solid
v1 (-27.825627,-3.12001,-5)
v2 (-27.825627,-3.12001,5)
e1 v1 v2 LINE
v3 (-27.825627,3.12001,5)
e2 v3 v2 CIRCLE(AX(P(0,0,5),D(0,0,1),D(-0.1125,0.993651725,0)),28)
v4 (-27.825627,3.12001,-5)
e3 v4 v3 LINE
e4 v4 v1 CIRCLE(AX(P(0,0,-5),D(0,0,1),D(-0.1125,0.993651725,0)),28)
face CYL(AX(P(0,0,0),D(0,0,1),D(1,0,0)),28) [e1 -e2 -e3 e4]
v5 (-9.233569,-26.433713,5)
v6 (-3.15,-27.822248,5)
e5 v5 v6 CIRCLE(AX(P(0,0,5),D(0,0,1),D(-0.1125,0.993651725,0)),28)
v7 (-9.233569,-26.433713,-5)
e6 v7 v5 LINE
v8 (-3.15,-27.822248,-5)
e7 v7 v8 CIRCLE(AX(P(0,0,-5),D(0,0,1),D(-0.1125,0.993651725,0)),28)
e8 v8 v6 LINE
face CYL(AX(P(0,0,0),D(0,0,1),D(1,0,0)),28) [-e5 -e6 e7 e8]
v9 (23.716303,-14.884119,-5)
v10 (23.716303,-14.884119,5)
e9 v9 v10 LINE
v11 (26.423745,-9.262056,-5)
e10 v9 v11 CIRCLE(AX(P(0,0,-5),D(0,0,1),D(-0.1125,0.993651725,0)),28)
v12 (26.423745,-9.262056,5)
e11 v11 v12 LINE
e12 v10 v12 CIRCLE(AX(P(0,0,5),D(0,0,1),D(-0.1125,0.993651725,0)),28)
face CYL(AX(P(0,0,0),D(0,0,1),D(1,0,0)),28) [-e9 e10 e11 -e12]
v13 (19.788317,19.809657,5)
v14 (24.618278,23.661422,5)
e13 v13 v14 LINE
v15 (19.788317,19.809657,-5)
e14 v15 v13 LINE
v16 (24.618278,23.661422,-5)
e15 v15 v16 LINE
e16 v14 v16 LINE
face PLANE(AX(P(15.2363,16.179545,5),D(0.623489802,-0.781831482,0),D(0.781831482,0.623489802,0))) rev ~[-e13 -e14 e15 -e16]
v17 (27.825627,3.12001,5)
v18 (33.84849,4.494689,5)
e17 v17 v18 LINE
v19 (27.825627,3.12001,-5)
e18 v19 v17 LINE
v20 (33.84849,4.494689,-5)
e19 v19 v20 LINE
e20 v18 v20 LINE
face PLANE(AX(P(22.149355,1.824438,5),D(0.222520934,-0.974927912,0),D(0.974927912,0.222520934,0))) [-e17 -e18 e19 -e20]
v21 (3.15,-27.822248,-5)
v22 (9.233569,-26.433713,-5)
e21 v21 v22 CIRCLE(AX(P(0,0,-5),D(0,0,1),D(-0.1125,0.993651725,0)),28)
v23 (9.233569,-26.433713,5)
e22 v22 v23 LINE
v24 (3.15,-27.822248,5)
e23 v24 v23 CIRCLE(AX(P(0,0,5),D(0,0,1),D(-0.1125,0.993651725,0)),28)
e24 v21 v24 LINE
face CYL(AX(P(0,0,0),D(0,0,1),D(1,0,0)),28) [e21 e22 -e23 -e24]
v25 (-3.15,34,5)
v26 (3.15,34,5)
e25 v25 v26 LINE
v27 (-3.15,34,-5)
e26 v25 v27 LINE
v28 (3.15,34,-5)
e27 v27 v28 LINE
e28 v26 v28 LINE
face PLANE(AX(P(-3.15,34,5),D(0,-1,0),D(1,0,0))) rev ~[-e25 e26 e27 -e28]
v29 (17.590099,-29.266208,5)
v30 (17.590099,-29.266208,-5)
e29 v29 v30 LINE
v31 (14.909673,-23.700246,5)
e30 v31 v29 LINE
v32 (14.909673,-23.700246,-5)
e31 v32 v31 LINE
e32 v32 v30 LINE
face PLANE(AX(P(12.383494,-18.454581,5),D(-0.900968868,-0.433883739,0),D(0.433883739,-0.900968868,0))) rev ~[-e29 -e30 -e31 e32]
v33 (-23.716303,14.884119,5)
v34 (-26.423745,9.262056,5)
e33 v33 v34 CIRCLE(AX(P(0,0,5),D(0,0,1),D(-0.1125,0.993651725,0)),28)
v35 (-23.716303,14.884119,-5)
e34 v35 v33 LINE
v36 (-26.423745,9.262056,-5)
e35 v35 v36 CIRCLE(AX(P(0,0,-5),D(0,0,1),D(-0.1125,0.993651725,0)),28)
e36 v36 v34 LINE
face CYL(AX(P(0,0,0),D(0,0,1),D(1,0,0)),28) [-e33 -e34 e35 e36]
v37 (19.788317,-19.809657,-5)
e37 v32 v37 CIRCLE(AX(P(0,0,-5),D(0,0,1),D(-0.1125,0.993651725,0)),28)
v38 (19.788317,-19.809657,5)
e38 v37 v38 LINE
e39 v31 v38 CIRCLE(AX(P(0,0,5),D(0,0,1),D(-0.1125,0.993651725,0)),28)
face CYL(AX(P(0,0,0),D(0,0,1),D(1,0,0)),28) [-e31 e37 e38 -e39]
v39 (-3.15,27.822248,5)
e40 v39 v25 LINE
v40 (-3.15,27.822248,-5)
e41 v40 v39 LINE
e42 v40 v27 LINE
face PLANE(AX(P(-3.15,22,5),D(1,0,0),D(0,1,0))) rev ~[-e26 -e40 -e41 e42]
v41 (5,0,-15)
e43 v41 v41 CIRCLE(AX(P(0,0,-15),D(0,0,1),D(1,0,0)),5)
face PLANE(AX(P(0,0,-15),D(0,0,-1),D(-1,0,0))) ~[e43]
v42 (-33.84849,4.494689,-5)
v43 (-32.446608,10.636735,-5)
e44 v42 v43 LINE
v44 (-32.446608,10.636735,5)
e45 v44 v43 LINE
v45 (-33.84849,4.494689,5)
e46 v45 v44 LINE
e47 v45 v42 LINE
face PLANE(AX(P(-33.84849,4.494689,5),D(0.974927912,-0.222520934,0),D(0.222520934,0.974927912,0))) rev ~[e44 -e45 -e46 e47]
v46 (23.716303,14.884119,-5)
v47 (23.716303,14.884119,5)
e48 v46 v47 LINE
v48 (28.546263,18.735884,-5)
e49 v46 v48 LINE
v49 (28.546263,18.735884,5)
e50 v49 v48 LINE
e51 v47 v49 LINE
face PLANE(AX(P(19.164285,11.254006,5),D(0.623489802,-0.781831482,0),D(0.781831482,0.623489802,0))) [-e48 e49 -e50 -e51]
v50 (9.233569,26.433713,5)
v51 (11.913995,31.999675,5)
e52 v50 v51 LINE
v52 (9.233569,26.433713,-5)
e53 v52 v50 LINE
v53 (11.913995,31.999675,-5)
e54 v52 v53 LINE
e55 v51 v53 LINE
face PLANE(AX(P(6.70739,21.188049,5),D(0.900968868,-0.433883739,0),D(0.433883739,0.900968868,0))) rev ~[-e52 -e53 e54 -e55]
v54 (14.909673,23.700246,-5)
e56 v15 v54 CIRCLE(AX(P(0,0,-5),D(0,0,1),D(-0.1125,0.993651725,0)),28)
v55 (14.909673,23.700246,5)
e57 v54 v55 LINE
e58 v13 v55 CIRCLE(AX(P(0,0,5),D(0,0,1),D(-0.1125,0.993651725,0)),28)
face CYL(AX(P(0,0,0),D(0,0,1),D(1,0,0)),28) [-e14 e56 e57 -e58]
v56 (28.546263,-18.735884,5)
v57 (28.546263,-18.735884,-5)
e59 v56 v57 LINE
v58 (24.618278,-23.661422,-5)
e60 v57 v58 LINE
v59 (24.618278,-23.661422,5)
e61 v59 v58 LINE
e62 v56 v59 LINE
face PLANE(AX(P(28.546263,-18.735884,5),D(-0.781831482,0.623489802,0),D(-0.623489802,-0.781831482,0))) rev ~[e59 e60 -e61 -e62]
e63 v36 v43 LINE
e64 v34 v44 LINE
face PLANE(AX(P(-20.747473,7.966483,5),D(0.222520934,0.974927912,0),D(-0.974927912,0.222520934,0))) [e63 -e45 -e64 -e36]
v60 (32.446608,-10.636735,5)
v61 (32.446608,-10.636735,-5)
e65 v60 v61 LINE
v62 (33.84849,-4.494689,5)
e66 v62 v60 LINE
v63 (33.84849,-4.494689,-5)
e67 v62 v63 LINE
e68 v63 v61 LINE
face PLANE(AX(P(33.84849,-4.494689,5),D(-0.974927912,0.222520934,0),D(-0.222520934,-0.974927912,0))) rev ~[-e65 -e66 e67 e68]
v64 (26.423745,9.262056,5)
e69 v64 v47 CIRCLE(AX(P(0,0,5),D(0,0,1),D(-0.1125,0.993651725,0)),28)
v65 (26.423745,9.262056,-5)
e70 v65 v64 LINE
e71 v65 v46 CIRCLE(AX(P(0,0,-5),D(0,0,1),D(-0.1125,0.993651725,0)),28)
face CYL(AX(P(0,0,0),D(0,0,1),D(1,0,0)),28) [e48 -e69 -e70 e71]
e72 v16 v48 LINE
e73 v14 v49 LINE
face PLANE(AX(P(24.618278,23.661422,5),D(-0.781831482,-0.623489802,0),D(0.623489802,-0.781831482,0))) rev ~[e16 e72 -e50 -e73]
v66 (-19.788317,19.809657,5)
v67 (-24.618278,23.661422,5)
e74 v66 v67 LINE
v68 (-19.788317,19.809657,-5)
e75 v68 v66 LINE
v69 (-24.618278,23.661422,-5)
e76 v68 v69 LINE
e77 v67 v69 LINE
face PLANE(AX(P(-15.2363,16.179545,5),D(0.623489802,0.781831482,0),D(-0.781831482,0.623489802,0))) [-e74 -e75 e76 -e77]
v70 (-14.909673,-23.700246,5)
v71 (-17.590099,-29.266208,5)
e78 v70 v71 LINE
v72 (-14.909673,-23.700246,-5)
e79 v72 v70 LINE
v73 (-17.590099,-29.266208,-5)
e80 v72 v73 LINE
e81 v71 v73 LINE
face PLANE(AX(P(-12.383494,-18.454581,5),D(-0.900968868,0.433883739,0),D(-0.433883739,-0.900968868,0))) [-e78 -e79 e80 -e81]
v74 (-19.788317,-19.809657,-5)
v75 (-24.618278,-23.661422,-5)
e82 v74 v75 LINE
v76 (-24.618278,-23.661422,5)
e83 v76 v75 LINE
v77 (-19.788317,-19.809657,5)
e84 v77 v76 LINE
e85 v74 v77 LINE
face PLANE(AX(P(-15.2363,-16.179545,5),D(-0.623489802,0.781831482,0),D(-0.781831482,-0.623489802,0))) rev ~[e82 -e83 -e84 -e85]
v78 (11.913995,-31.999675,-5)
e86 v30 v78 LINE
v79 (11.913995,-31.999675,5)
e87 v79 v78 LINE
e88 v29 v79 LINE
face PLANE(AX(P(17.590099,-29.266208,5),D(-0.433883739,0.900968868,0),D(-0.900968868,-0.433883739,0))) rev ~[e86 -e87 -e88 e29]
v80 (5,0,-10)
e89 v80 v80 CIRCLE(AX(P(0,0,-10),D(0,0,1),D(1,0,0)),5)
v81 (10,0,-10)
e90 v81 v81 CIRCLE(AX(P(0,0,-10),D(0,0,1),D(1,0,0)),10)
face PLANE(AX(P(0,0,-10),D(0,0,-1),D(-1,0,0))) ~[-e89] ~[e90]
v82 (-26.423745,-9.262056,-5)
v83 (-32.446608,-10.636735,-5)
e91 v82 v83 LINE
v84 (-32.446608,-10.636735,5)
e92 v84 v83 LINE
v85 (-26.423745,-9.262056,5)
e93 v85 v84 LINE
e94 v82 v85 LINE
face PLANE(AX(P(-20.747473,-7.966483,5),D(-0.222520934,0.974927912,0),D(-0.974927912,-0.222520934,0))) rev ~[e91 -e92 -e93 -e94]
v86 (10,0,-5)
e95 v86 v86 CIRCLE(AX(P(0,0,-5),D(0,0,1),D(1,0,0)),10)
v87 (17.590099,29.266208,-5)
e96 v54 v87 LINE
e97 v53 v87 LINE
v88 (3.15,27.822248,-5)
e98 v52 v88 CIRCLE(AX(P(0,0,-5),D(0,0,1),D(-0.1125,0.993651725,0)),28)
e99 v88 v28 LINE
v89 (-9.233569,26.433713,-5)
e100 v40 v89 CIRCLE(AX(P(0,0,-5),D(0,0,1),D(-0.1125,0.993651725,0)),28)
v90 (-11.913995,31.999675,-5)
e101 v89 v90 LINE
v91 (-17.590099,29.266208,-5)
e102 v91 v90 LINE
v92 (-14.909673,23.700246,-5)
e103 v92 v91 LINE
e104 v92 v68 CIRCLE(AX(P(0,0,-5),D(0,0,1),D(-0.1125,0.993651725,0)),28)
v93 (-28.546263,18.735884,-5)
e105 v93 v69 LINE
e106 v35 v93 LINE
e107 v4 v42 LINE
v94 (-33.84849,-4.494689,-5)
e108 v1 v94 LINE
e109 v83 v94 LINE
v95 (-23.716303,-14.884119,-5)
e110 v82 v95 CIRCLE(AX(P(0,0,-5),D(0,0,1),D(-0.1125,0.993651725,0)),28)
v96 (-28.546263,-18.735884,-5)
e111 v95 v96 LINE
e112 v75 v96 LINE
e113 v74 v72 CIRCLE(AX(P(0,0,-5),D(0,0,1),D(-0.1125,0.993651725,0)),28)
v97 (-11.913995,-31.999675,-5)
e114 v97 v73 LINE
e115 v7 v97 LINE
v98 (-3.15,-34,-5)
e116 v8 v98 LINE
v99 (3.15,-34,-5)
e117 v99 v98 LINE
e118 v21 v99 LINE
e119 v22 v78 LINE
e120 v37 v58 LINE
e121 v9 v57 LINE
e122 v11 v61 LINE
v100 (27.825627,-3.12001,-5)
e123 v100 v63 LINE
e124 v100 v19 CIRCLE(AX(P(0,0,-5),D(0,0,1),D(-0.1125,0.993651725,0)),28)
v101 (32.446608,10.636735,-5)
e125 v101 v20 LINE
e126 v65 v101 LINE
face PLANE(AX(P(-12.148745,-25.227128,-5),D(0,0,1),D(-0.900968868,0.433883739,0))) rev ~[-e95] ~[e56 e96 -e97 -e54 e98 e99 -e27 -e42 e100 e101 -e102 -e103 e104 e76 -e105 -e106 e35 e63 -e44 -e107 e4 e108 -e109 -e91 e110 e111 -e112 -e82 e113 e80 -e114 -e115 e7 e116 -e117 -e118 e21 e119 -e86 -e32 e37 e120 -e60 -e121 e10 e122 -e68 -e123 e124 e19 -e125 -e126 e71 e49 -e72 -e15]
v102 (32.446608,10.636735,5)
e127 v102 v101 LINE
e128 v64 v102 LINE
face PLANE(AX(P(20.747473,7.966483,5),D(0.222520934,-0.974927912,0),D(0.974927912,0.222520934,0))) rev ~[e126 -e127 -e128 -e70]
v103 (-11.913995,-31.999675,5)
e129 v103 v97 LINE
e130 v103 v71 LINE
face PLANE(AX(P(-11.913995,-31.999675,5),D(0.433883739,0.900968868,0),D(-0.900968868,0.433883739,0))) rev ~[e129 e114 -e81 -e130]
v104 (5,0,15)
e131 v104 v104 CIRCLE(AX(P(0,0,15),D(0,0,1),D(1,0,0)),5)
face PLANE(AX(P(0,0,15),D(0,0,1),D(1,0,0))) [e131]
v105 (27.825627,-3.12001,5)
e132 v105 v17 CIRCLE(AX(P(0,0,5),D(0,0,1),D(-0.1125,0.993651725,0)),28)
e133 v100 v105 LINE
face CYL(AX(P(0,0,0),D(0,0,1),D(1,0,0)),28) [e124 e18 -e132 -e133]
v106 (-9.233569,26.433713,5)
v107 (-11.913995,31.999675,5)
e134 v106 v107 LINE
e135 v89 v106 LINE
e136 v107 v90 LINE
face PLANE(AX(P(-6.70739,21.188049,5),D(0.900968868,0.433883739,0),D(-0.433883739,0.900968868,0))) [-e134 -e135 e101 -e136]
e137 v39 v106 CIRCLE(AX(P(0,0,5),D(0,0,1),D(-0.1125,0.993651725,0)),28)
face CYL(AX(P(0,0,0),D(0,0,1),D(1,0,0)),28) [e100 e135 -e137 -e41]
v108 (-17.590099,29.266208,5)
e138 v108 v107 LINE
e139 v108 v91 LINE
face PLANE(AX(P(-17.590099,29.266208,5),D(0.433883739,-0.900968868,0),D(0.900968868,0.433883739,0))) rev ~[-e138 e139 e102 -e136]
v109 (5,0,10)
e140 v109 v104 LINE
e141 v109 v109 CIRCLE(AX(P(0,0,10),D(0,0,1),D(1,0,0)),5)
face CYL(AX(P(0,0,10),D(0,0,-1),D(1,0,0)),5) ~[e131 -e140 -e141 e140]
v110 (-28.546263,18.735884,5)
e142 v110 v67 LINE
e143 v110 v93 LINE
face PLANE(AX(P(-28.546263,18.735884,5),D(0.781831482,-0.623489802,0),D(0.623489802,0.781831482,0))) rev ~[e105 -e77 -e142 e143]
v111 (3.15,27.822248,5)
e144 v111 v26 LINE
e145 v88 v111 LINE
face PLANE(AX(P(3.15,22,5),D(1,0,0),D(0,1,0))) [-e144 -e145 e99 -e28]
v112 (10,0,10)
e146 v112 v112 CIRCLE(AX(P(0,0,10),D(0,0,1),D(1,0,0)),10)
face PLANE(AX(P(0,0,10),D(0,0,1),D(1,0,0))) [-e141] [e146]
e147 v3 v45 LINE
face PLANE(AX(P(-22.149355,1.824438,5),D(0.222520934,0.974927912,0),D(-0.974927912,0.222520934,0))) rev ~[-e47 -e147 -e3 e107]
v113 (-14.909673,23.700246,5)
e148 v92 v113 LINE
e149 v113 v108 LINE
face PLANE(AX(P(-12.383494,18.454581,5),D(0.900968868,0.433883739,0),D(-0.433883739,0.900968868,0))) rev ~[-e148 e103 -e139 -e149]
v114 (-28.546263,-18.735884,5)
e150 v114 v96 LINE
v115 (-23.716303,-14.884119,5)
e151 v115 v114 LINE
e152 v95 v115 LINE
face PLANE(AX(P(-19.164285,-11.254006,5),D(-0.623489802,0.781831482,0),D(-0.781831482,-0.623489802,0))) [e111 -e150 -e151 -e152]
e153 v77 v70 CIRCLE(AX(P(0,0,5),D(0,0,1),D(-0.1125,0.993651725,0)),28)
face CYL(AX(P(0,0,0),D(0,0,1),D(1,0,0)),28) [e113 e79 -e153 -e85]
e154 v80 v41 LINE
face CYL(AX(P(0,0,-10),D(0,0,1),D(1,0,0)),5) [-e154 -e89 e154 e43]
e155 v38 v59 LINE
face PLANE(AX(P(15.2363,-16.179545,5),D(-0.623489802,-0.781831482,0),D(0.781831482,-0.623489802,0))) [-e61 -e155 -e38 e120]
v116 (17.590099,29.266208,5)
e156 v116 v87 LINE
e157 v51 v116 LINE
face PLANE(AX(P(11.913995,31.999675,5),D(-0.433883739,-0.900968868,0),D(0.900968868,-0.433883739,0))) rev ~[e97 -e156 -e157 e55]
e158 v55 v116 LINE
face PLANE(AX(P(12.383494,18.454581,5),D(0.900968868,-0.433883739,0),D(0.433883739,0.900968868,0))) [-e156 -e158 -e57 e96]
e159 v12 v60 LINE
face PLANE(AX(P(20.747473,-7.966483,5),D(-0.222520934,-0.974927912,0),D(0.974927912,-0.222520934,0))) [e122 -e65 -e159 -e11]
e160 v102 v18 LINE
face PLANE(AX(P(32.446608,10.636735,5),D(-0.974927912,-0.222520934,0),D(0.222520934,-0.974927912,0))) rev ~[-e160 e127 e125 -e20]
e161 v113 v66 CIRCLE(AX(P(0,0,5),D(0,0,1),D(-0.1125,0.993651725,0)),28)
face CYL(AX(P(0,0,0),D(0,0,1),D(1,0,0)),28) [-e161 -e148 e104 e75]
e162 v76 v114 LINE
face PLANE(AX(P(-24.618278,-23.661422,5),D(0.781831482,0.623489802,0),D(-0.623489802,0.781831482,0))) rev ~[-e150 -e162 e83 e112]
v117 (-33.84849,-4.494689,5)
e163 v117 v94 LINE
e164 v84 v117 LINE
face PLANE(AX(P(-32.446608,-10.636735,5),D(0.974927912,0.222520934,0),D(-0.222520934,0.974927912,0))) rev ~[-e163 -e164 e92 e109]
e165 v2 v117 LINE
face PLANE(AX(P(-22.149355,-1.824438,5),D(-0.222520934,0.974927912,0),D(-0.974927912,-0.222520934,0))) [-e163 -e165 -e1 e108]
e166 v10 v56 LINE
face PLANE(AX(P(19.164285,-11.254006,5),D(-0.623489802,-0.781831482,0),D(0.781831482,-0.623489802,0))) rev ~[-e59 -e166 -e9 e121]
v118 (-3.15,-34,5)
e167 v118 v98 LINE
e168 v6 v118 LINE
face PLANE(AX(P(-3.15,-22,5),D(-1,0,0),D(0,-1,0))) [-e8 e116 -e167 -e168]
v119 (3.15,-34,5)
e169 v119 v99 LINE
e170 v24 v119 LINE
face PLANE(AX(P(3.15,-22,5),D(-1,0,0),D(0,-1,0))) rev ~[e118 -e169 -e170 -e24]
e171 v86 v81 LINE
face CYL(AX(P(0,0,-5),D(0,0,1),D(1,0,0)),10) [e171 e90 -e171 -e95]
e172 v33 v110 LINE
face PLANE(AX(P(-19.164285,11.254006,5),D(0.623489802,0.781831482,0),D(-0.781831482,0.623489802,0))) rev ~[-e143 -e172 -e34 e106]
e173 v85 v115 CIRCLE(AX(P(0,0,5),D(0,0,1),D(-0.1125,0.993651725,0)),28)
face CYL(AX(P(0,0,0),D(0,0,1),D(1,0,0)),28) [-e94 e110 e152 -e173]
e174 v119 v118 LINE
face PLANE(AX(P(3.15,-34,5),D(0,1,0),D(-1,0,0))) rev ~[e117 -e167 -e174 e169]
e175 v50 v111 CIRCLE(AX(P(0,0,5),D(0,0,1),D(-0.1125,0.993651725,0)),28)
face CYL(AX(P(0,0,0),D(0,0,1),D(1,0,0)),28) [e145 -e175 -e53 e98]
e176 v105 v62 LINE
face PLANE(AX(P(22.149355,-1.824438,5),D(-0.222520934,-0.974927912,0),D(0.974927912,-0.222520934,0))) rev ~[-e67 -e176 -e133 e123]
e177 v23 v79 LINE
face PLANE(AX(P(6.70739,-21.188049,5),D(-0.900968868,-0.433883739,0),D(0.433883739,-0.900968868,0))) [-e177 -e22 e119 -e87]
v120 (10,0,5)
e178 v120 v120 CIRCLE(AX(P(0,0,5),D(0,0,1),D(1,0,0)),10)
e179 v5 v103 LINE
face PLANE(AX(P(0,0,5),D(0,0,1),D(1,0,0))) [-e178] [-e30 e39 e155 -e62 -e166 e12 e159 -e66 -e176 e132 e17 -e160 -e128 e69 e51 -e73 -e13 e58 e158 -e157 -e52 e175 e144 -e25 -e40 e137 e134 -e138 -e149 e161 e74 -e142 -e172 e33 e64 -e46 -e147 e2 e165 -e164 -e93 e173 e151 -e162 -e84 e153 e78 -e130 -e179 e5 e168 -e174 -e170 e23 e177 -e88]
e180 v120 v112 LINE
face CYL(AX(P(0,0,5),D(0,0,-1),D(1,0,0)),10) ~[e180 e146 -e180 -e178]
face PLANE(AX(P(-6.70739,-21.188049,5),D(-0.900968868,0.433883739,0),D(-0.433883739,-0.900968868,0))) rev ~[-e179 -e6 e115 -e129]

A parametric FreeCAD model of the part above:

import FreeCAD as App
import Part
import Sketcher
Q = App.Units.Quantity


def add_polygon(sketch, points):
    """Adds a closed chain of lines whose ends are joined by coincident constraints."""
    first, n = sketch.GeometryCount, len(points)
    for a, b in zip(points, points[1:] + points[:1]):
        sketch.addGeometry(Part.LineSegment(App.Vector(*a, 0), App.Vector(*b, 0)), False)
    for i in range(n):
        sketch.addConstraint(Sketcher.Constraint("Coincident", first + i, 2, first + (i + 1) % n, 1))

doc = App.newDocument("Part")
params = doc.addObject("Spreadsheet::Sheet", "Params")
for row, (alias, value) in enumerate([
    ("sketch1_diameter", "56 mm"),
    ("pad1_length", "10 mm"),
    ("sketch2_height", "12 mm"),
    ("sketch2_width", "6.3 mm"),
    ("pad2_length", "10 mm"),
    ("sketch3_diameter", "20 mm"),
    ("pad3_length", "5 mm"),
    ("sketch4_diameter", "10 mm"),
    ("pad4_length", "5 mm"),
], start=1):
    params.set(f"A{row}", alias)
    params.set(f"B{row}", "=" + value)
    params.setAlias(f"B{row}", alias)

body = doc.addObject("PartDesign::Body", "Body")

sketch1 = body.newObject("Sketcher::SketchObject", "Sketch")
sketch1.AttachmentSupport = (doc.getObject("XY_Plane"), [""])
sketch1.MapMode = "FlatFace"
sketch1.addGeometry(Part.Circle(App.Vector(0, 0, 0), App.Vector(0, 0, 1), 28), False)
sketch1.addConstraint([
    Sketcher.Constraint("Coincident", 0, 3, -1, 1),
    Sketcher.Constraint("Diameter", 0, Q("56 mm")),
])
sketch1.setExpression("Constraints[1]", "Params.sketch1_diameter")
pad1 = body.newObject("PartDesign::Pad", "Pad")
pad1.Profile = sketch1
pad1.setExpression("Length", "Params.pad1_length")
pad1.Midplane = True

sketch2 = body.newObject("Sketcher::SketchObject", "Sketch001")
sketch2.AttachmentSupport = (doc.getObject("XY_Plane"), [""])
sketch2.MapMode = "FlatFace"
sketch2.AttachmentOffset = App.Placement(App.Vector(0, 0, 5), App.Rotation())
add_polygon(sketch2, [(-3, 34), (-3, 22), (3, 22), (3, 34)])
sketch2.addConstraint([
    Sketcher.Constraint("Vertical", 0),
    Sketcher.Constraint("Horizontal", 1),
    Sketcher.Constraint("Vertical", 2),
    Sketcher.Constraint("Horizontal", 3),
    Sketcher.Constraint("DistanceY", 0, 2, 0, 1, Q("12 mm")),
    Sketcher.Constraint("DistanceX", 1, 1, 1, 2, Q("6.3 mm")),
    Sketcher.Constraint("DistanceY", -1, 1, 0, 2, Q("22 mm")),
    Sketcher.Constraint("DistanceX", 0, 2, -1, 1, Q("3.15 mm")),
])
sketch2.setExpression("Constraints[8]", "Params.sketch2_height")
sketch2.setExpression("Constraints[9]", "Params.sketch2_width")
pad2 = body.newObject("PartDesign::Pad", "Pad001")
pad2.Profile = sketch2
pad2.setExpression("Length", "Params.pad2_length")
pad2.Reversed = True
doc.recompute()

polarpattern = body.newObject("PartDesign::PolarPattern", "PolarPattern")
polarpattern.Originals = [pad2]
polarpattern.Axis = (doc.getObject("Z_Axis"), [""])
polarpattern.Angle = 360
polarpattern.Occurrences = 14
body.Tip = polarpattern

sketch3 = body.newObject("Sketcher::SketchObject", "Sketch002")
sketch3.AttachmentSupport = (doc.getObject("XY_Plane"), [""])
sketch3.MapMode = "FlatFace"
sketch3.AttachmentOffset = App.Placement(App.Vector(0, 0, 5), App.Rotation())
sketch3.addGeometry(Part.Circle(App.Vector(0, 0, 0), App.Vector(0, 0, 1), 10), False)
sketch3.addConstraint([
    Sketcher.Constraint("Coincident", 0, 3, -1, 1),
    Sketcher.Constraint("Diameter", 0, Q("20 mm")),
])
sketch3.setExpression("Constraints[1]", "Params.sketch3_diameter")
pad3 = body.newObject("PartDesign::Pad", "Pad002")
pad3.Profile = sketch3
pad3.setExpression("Length", "Params.pad3_length")

sketch4 = body.newObject("Sketcher::SketchObject", "Sketch003")
sketch4.AttachmentSupport = (doc.getObject("XY_Plane"), [""])
sketch4.MapMode = "FlatFace"
sketch4.AttachmentOffset = App.Placement(App.Vector(0, 0, 10), App.Rotation())
sketch4.addGeometry(Part.Circle(App.Vector(0, 0, 0), App.Vector(0, 0, 1), 5), False)
sketch4.addConstraint([
    Sketcher.Constraint("Coincident", 0, 3, -1, 1),
    Sketcher.Constraint("Diameter", 0, Q("10 mm")),
])
sketch4.setExpression("Constraints[1]", "Params.sketch4_diameter")
pad4 = body.newObject("PartDesign::Pad", "Pad003")
pad4.Profile = sketch4
pad4.setExpression("Length", "Params.pad4_length")
doc.recompute()

mirrored = body.newObject("PartDesign::Mirrored", "Mirrored")
mirrored.Originals = [pad3, pad4]
mirrored.MirrorPlane = (doc.getObject("XY_Plane"), [""])
body.Tip = mirrored

doc.recompute()
